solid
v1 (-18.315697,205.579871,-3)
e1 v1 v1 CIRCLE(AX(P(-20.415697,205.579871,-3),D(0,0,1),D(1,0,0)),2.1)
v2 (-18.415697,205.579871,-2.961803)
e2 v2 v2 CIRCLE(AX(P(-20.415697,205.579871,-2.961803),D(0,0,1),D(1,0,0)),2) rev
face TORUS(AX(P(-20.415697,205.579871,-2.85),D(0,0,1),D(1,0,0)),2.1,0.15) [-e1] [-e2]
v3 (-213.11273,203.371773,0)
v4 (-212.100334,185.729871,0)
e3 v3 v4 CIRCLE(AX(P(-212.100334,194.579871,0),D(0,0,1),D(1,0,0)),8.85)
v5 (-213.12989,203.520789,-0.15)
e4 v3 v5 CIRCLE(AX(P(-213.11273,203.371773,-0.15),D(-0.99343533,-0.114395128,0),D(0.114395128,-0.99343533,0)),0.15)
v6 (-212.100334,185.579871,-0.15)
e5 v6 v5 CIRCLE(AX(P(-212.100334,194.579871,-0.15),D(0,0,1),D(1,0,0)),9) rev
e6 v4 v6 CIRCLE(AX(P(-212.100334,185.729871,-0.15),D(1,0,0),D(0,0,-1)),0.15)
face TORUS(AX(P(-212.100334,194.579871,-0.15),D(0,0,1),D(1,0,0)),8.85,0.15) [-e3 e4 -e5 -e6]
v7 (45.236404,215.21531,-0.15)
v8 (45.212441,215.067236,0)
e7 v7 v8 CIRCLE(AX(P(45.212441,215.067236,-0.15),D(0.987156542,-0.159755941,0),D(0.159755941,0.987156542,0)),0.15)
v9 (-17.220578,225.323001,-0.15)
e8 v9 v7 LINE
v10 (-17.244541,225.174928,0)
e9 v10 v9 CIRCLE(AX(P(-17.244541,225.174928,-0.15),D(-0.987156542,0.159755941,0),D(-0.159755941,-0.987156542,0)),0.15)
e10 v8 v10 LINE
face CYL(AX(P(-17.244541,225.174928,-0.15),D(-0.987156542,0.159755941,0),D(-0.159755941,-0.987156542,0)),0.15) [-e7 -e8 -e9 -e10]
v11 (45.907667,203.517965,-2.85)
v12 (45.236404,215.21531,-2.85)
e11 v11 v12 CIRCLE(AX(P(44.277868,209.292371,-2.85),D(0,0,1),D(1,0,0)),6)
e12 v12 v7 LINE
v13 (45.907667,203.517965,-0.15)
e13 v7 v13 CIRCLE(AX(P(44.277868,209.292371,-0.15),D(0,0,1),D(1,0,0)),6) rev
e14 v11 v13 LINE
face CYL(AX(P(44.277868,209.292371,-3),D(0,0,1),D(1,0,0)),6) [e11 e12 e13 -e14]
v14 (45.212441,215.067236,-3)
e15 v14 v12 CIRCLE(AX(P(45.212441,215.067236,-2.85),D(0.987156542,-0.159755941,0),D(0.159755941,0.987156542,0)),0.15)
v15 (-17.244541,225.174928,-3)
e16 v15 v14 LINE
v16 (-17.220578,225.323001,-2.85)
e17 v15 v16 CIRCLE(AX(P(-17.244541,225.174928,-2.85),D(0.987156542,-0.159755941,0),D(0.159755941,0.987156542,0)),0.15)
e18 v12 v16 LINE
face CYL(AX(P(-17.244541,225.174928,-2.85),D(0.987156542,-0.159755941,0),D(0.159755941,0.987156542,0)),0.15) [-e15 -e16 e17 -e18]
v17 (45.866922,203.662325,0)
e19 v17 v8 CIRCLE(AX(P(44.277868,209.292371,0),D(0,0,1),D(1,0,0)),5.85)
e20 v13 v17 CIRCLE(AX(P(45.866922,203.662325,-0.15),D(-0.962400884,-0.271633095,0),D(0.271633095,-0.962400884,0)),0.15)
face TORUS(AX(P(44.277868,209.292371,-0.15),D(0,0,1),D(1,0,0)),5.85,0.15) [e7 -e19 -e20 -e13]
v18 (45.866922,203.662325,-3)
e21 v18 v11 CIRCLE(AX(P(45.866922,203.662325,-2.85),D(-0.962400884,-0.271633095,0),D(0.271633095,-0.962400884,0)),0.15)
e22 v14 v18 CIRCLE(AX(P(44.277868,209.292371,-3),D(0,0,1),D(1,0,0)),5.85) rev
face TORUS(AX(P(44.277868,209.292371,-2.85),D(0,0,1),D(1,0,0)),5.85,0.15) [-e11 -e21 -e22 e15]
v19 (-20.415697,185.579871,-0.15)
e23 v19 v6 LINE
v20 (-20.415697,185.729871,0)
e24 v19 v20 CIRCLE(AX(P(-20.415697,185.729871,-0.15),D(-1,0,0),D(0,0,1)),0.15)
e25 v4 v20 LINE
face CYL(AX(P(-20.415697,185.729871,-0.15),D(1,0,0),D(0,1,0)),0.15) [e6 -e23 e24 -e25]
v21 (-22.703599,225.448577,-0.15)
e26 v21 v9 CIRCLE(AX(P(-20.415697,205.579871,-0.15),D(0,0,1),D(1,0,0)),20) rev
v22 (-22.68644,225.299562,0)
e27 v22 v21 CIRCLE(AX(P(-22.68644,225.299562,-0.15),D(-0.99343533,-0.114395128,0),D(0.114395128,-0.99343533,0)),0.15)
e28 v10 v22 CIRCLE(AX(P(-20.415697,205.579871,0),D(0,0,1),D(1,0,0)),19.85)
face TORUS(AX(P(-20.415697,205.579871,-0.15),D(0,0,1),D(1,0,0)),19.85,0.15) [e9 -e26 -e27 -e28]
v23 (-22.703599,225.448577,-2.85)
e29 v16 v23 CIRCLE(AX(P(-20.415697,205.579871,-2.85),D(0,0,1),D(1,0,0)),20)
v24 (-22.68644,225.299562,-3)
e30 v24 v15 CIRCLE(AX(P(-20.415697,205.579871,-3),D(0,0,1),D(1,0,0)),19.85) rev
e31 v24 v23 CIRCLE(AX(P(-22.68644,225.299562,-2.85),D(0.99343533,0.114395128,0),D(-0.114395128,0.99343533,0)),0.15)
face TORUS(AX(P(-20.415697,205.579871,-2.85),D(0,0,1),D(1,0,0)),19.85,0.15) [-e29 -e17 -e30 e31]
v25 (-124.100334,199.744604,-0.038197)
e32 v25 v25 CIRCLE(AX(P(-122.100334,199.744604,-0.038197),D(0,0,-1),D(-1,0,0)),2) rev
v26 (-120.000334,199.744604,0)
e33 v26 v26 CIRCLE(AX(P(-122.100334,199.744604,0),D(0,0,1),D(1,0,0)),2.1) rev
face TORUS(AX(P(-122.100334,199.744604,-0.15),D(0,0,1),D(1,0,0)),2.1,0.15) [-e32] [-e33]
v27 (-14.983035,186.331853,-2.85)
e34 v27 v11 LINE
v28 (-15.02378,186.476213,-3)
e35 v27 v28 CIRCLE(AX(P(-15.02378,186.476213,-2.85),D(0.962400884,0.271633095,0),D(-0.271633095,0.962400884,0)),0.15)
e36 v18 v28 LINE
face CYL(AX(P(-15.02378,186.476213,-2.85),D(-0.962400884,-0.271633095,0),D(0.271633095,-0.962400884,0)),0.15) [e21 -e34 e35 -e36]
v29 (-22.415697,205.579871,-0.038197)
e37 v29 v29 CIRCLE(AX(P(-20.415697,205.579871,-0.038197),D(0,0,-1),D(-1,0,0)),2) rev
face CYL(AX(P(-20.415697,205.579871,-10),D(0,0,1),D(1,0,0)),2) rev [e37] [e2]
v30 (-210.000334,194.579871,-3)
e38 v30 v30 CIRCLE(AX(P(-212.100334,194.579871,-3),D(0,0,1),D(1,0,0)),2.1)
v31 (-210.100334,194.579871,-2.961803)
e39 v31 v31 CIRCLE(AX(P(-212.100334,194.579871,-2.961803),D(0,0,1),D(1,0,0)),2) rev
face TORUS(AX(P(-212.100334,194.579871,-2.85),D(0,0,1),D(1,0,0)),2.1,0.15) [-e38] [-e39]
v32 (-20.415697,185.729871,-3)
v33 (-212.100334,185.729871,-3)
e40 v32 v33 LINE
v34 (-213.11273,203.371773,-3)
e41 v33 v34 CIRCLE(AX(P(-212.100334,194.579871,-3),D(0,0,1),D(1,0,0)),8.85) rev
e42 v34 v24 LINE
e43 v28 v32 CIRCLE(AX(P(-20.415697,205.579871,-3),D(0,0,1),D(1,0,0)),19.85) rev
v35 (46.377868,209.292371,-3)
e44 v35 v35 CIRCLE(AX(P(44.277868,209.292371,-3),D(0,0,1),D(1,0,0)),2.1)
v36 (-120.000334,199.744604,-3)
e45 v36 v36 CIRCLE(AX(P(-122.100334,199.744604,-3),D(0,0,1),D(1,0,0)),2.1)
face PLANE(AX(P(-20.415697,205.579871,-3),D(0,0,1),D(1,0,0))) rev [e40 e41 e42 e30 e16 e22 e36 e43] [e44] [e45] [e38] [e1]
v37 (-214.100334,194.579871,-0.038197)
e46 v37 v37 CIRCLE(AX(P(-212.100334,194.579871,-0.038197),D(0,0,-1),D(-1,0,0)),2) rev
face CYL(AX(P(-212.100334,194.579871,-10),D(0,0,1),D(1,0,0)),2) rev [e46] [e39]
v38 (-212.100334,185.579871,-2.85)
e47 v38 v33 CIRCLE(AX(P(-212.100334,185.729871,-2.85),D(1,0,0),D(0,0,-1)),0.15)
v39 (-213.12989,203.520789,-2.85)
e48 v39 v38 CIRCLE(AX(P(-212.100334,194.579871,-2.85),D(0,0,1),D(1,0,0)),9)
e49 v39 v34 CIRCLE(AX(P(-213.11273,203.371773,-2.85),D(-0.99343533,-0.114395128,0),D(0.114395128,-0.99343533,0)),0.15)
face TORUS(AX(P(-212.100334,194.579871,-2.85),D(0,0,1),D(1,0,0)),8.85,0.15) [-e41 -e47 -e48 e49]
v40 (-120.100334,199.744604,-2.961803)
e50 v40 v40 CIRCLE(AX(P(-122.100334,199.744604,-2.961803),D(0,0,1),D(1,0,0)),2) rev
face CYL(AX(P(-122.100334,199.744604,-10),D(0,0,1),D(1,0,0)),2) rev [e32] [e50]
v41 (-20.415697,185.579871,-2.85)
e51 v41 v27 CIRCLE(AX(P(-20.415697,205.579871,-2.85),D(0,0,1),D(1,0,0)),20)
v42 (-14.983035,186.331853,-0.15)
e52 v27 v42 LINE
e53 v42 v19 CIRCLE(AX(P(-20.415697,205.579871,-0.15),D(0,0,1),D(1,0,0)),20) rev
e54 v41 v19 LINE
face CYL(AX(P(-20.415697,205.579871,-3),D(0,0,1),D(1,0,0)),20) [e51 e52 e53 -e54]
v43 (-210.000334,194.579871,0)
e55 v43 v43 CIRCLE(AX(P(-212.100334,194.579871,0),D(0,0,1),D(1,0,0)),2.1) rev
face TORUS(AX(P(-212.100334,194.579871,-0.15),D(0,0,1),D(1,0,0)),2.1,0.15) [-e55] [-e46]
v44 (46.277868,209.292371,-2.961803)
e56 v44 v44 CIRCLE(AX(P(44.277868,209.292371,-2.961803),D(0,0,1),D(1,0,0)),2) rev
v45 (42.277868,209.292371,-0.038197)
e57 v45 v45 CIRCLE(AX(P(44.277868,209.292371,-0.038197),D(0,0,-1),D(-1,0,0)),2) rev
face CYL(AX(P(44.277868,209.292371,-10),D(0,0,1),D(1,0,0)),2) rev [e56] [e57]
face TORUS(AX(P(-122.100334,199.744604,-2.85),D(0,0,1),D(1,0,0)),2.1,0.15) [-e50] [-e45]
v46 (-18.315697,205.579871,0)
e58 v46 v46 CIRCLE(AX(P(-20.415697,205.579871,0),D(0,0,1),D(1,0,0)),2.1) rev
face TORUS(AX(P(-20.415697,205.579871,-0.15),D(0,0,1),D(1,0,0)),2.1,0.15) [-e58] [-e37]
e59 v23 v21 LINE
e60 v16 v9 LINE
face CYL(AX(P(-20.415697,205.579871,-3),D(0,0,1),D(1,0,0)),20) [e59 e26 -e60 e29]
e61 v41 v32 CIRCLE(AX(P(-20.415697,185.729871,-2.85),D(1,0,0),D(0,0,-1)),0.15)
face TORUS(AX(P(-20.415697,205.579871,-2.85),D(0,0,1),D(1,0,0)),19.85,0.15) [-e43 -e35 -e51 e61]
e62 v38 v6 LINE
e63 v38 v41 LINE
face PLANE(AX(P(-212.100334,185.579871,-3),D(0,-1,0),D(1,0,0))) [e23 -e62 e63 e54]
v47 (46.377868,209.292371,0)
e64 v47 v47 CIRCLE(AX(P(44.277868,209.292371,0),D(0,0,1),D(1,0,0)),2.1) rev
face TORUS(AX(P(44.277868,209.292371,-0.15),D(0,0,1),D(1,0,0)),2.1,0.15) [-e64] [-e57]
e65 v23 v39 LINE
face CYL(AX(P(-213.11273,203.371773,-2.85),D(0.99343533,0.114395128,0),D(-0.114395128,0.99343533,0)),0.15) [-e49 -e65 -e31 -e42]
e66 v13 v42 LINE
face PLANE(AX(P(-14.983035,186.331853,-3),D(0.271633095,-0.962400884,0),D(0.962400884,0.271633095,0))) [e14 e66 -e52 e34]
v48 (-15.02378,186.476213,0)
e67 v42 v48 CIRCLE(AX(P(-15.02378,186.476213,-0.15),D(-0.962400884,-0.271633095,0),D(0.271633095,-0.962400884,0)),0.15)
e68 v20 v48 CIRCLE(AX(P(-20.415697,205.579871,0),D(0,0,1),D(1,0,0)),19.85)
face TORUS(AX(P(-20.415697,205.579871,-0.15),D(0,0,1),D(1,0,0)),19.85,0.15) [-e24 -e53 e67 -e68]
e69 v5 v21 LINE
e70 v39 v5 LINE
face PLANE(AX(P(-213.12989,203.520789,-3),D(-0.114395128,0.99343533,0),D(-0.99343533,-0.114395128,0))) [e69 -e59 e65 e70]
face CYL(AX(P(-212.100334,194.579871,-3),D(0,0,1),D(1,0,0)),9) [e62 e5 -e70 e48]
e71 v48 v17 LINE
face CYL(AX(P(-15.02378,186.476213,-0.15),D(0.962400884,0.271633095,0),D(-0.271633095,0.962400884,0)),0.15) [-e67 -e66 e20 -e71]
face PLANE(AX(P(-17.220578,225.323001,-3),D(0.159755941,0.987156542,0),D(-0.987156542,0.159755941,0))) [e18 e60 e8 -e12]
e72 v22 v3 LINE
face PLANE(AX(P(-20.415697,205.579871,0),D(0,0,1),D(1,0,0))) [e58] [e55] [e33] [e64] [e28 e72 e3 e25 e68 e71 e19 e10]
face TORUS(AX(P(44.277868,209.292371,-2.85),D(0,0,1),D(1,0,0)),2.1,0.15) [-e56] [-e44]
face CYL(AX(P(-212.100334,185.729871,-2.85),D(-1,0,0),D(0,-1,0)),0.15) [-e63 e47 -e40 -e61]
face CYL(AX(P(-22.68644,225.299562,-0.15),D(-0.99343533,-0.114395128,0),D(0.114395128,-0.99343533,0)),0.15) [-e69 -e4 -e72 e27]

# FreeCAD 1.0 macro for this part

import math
import FreeCAD as App
import Part
import Sketcher
from FreeCAD import Vector


def edges_at(feature, points):
    """Names of the edges that pass closest to the given points."""
    edges = feature.Shape.Edges
    near = lambda p: min(range(len(edges)), key=lambda i: edges[i].distToShape(Part.Vertex(*p))[0])
    return sorted({f"Edge{near(p) + 1}" for p in points})

doc = App.newDocument("Part")
body = doc.addObject("PartDesign::Body", "Body")

# Sketch on XY plane
sketch1 = body.newObject("Sketcher::SketchObject", "Sketch")
sketch1.AttachmentSupport = (doc.getObject("XY_Plane"), [""])
sketch1.MapMode = "FlatFace"
sketch1.addGeometry(Part.LineSegment(Vector(-14.983035, 186.331853, 0), Vector(45.907667, 203.517965, 0)), False)
sketch1.addGeometry(Part.ArcOfCircle(Part.Circle(Vector(44.277868, 209.292371, 0), Vector(0, 0, 1), 6), math.radians(-74.238531), math.radians(80.80727)), False)
sketch1.addGeometry(Part.LineSegment(Vector(45.236404, 215.21531, 0), Vector(-17.220578, 225.323001, 0)), False)
sketch1.addGeometry(Part.ArcOfCircle(Part.Circle(Vector(-20.415697, 205.579871, 0), Vector(0, 0, 1), 20), math.radians(80.80727), math.radians(96.568738)), False)
sketch1.addGeometry(Part.LineSegment(Vector(-22.703599, 225.448577, 0), Vector(-213.12989, 203.520789, 0)), False)
sketch1.addGeometry(Part.ArcOfCircle(Part.Circle(Vector(-212.100334, 194.579871, 0), Vector(0, 0, 1), 9), math.radians(96.568738), math.radians(270)), False)
sketch1.addGeometry(Part.LineSegment(Vector(-212.100334, 185.579871, 0), Vector(-20.415697, 185.579871, 0)), False)
sketch1.addGeometry(Part.ArcOfCircle(Part.Circle(Vector(-20.415697, 205.579871, 0), Vector(0, 0, 1), 20), math.radians(-90), math.radians(-74.238531)), False)
sketch1.addConstraint(Sketcher.Constraint("Tangent", 0, 2, 1, 1))
sketch1.addConstraint(Sketcher.Constraint("Tangent", 1, 2, 2, 1))
sketch1.addConstraint(Sketcher.Constraint("Tangent", 2, 2, 3, 1))
sketch1.addConstraint(Sketcher.Constraint("Tangent", 3, 2, 4, 1))
sketch1.addConstraint(Sketcher.Constraint("Tangent", 4, 2, 5, 1))
sketch1.addConstraint(Sketcher.Constraint("Tangent", 5, 2, 6, 1))
sketch1.addConstraint(Sketcher.Constraint("Tangent", 6, 2, 7, 1))
sketch1.addConstraint(Sketcher.Constraint("Tangent", 7, 2, 0, 1))
sketch1.addConstraint(Sketcher.Constraint("Horizontal", 6))
sketch1.addConstraint(Sketcher.Constraint("Coincident", 7, 3, 3, 3))
sketch1.addConstraint(Sketcher.Constraint("Equal", 3, 7))
sketch1.addConstraint(Sketcher.Constraint("Radius", 1, 6.0))
sketch1.addConstraint(Sketcher.Constraint("Radius", 3, 20.0))
sketch1.addConstraint(Sketcher.Constraint("Radius", 5, 9.0))
sketch1.addConstraint(Sketcher.Constraint("DistanceY", -1, 1, 2, 2, 225.323001))
sketch1.addConstraint(Sketcher.Constraint("DistanceX", 5, 3, 0, 2, 258.008))
sketch1.addConstraint(Sketcher.Constraint("DistanceX", 3, 2, -1, 1, 22.703599))
sketch1.addConstraint(Sketcher.Constraint("DistanceY", 3, 3, 1, 3, 3.7125))
sketch1.addConstraint(Sketcher.Constraint("DistanceX", 5, 3, 1, 3, 256.378202))
pad1 = body.newObject("PartDesign::Pad", "Pad")
pad1.Profile = sketch1
pad1.Length = 3
pad1.Reversed = True

# Sketch on XY plane
sketch2 = body.newObject("Sketcher::SketchObject", "Sketch001")
sketch2.AttachmentSupport = (doc.getObject("XY_Plane"), [""])
sketch2.MapMode = "FlatFace"
sketch2.addGeometry(Part.Circle(Vector(44.3, 209.3, 0), Vector(0, 0, 1), 1.9), False)
sketch2.addGeometry(Part.Circle(Vector(-20.4, 205.6, 0), Vector(0, 0, 1), 1.9), False)
sketch2.addGeometry(Part.Circle(Vector(-52.2, -1330.2, 0), Vector(0, 0, 1), 1.9), False)
sketch2.addGeometry(Part.Circle(Vector(-122.1, 199.7, 0), Vector(0, 0, 1), 1.9), False)
sketch2.addGeometry(Part.Circle(Vector(-212.1, 194.6, 0), Vector(0, 0, 1), 1.9), False)
sketch2.addConstraint(Sketcher.Constraint("Equal", 0, 1))
sketch2.addConstraint(Sketcher.Constraint("Equal", 1, 2))
sketch2.addConstraint(Sketcher.Constraint("Equal", 2, 3))
sketch2.addConstraint(Sketcher.Constraint("Equal", 3, 4))
sketch2.addConstraint(Sketcher.Constraint("Diameter", 0, 3.9))
sketch2.addConstraint(Sketcher.Constraint("DistanceX", 4, 3, 3, 3, 90.0))
sketch2.addConstraint(Sketcher.Constraint("DistanceY", 4, 3, 1, 3, 11.0))
sketch2.addConstraint(Sketcher.Constraint("DistanceX", 2, 3, 1, 3, 31.75))
sketch2.addConstraint(Sketcher.Constraint("DistanceY", 1, 3, 0, 3, 3.7125))
sketch2.addConstraint(Sketcher.Constraint("DistanceX", 3, 3, 0, 3, 166.378202))
sketch2.addConstraint(Sketcher.Constraint("DistanceX", -1, 1, 0, 3, 44.277868))
sketch2.addConstraint(Sketcher.Constraint("DistanceY", -1, 1, 0, 3, 209.292371))
sketch2.addConstraint(Sketcher.Constraint("DistanceY", 2, 3, -1, 1, 1330.164309))
sketch2.addConstraint(Sketcher.Constraint("DistanceX", 1, 3, -1, 1, 20.415697))
sketch2.addConstraint(Sketcher.Constraint("DistanceY", -1, 1, 3, 3, 199.744604))
doc.recompute()
hole = body.newObject("PartDesign::Hole", "Hole")
hole.Profile = sketch2
hole.ThreadType = "None"
hole.Diameter = 3.9
hole.DepthType = "Dimension"
hole.Depth = 10
hole.DrillPoint = "Angled"
hole.DrillPointAngle = 118
doc.recompute()

fillet = body.newObject("PartDesign::Fillet", "Fillet")
fillet.Base = (hole, edges_at(hole, [
    (50.268, 209.636, -3),
    (15.462, 194.925, 0),
    (-17.673, 185.769, 0),
    (14.008, 220.269, -3),
    (-19.958, 225.575, -3),
    (-117.917, 214.485, -3),
    (-221.086, 194.064, -3),
    (-116.258, 185.58, -3),
    (-210.15, 194.58, -3),
    (-210.15, 194.58, 0),
    (-120.15, 199.745, -3),
    (-120.15, 199.745, 0),
    (-18.466, 205.58, -3),
    (-18.466, 205.58, 0),
    (-17.673, 185.769, -3),
    (46.228, 209.292, -3),
    (46.228, 209.292, 0),
    (15.462, 194.925, -3),
    (-116.258, 185.58, 0),
    (-221.086, 194.064, 0),
    (-117.917, 214.485, 0),
    (-19.958, 225.575, 0),
    (14.008, 220.269, 0),
    (50.268, 209.636, 0),
]))
fillet.Radius = 0.15

# Sketch on XY plane
sketch3 = body.newObject("Sketcher::SketchObject", "Sketch002")
sketch3.AttachmentSupport = (doc.getObject("XY_Plane"), [""])
sketch3.MapMode = "FlatFace"
sketch3.addGeometry(Part.Circle(Vector(-20.4, 205.6, 0), Vector(0, 0, 1), 2), False)
sketch3.addConstraint(Sketcher.Constraint("Diameter", 0, 4.0))
sketch3.addConstraint(Sketcher.Constraint("DistanceY", -1, 1, 0, 3, 205.579871))
sketch3.addConstraint(Sketcher.Constraint("DistanceX", 0, 3, -1, 1, 20.415697))
pocket1 = body.newObject("PartDesign::Pocket", "Pocket")
pocket1.Profile = sketch3
pocket1.Length = 10

# Sketch on XY plane
sketch4 = body.newObject("Sketcher::SketchObject", "Sketch003")
sketch4.AttachmentSupport = (doc.getObject("XY_Plane"), [""])
sketch4.MapMode = "FlatFace"
sketch4.addGeometry(Part.Circle(Vector(44.3, 209.3, 0), Vector(0, 0, 1), 2), False)
sketch4.addConstraint(Sketcher.Constraint("Diameter", 0, 4.0))
sketch4.addConstraint(Sketcher.Constraint("DistanceX", -1, 1, 0, 3, 44.277868))
sketch4.addConstraint(Sketcher.Constraint("DistanceY", -1, 1, 0, 3, 209.292371))
pocket2 = body.newObject("PartDesign::Pocket", "Pocket001")
pocket2.Profile = sketch4
pocket2.Length = 10

# Sketch on XY plane
sketch5 = body.newObject("Sketcher::SketchObject", "Sketch004")
sketch5.AttachmentSupport = (doc.getObject("XY_Plane"), [""])
sketch5.MapMode = "FlatFace"
sketch5.addGeometry(Part.Circle(Vector(-122.1, 199.7, 0), Vector(0, 0, 1), 2), False)
sketch5.addGeometry(Part.Circle(Vector(-212.1, 194.6, 0), Vector(0, 0, 1), 2), False)
sketch5.addConstraint(Sketcher.Constraint("Equal", 0, 1))
sketch5.addConstraint(Sketcher.Constraint("Diameter", 0, 4.0))
sketch5.addConstraint(Sketcher.Constraint("DistanceX", 1, 3, 0, 3, 90.0))
sketch5.addConstraint(Sketcher.Constraint("DistanceY", -1, 1, 1, 3, 194.579871))
sketch5.addConstraint(Sketcher.Constraint("DistanceX", 0, 3, -1, 1, 122.100334))
sketch5.addConstraint(Sketcher.Constraint("DistanceY", -1, 1, 0, 3, 199.744604))
pocket3 = body.newObject("PartDesign::Pocket", "Pocket002")
pocket3.Profile = sketch5
pocket3.Length = 10

doc.recompute()
